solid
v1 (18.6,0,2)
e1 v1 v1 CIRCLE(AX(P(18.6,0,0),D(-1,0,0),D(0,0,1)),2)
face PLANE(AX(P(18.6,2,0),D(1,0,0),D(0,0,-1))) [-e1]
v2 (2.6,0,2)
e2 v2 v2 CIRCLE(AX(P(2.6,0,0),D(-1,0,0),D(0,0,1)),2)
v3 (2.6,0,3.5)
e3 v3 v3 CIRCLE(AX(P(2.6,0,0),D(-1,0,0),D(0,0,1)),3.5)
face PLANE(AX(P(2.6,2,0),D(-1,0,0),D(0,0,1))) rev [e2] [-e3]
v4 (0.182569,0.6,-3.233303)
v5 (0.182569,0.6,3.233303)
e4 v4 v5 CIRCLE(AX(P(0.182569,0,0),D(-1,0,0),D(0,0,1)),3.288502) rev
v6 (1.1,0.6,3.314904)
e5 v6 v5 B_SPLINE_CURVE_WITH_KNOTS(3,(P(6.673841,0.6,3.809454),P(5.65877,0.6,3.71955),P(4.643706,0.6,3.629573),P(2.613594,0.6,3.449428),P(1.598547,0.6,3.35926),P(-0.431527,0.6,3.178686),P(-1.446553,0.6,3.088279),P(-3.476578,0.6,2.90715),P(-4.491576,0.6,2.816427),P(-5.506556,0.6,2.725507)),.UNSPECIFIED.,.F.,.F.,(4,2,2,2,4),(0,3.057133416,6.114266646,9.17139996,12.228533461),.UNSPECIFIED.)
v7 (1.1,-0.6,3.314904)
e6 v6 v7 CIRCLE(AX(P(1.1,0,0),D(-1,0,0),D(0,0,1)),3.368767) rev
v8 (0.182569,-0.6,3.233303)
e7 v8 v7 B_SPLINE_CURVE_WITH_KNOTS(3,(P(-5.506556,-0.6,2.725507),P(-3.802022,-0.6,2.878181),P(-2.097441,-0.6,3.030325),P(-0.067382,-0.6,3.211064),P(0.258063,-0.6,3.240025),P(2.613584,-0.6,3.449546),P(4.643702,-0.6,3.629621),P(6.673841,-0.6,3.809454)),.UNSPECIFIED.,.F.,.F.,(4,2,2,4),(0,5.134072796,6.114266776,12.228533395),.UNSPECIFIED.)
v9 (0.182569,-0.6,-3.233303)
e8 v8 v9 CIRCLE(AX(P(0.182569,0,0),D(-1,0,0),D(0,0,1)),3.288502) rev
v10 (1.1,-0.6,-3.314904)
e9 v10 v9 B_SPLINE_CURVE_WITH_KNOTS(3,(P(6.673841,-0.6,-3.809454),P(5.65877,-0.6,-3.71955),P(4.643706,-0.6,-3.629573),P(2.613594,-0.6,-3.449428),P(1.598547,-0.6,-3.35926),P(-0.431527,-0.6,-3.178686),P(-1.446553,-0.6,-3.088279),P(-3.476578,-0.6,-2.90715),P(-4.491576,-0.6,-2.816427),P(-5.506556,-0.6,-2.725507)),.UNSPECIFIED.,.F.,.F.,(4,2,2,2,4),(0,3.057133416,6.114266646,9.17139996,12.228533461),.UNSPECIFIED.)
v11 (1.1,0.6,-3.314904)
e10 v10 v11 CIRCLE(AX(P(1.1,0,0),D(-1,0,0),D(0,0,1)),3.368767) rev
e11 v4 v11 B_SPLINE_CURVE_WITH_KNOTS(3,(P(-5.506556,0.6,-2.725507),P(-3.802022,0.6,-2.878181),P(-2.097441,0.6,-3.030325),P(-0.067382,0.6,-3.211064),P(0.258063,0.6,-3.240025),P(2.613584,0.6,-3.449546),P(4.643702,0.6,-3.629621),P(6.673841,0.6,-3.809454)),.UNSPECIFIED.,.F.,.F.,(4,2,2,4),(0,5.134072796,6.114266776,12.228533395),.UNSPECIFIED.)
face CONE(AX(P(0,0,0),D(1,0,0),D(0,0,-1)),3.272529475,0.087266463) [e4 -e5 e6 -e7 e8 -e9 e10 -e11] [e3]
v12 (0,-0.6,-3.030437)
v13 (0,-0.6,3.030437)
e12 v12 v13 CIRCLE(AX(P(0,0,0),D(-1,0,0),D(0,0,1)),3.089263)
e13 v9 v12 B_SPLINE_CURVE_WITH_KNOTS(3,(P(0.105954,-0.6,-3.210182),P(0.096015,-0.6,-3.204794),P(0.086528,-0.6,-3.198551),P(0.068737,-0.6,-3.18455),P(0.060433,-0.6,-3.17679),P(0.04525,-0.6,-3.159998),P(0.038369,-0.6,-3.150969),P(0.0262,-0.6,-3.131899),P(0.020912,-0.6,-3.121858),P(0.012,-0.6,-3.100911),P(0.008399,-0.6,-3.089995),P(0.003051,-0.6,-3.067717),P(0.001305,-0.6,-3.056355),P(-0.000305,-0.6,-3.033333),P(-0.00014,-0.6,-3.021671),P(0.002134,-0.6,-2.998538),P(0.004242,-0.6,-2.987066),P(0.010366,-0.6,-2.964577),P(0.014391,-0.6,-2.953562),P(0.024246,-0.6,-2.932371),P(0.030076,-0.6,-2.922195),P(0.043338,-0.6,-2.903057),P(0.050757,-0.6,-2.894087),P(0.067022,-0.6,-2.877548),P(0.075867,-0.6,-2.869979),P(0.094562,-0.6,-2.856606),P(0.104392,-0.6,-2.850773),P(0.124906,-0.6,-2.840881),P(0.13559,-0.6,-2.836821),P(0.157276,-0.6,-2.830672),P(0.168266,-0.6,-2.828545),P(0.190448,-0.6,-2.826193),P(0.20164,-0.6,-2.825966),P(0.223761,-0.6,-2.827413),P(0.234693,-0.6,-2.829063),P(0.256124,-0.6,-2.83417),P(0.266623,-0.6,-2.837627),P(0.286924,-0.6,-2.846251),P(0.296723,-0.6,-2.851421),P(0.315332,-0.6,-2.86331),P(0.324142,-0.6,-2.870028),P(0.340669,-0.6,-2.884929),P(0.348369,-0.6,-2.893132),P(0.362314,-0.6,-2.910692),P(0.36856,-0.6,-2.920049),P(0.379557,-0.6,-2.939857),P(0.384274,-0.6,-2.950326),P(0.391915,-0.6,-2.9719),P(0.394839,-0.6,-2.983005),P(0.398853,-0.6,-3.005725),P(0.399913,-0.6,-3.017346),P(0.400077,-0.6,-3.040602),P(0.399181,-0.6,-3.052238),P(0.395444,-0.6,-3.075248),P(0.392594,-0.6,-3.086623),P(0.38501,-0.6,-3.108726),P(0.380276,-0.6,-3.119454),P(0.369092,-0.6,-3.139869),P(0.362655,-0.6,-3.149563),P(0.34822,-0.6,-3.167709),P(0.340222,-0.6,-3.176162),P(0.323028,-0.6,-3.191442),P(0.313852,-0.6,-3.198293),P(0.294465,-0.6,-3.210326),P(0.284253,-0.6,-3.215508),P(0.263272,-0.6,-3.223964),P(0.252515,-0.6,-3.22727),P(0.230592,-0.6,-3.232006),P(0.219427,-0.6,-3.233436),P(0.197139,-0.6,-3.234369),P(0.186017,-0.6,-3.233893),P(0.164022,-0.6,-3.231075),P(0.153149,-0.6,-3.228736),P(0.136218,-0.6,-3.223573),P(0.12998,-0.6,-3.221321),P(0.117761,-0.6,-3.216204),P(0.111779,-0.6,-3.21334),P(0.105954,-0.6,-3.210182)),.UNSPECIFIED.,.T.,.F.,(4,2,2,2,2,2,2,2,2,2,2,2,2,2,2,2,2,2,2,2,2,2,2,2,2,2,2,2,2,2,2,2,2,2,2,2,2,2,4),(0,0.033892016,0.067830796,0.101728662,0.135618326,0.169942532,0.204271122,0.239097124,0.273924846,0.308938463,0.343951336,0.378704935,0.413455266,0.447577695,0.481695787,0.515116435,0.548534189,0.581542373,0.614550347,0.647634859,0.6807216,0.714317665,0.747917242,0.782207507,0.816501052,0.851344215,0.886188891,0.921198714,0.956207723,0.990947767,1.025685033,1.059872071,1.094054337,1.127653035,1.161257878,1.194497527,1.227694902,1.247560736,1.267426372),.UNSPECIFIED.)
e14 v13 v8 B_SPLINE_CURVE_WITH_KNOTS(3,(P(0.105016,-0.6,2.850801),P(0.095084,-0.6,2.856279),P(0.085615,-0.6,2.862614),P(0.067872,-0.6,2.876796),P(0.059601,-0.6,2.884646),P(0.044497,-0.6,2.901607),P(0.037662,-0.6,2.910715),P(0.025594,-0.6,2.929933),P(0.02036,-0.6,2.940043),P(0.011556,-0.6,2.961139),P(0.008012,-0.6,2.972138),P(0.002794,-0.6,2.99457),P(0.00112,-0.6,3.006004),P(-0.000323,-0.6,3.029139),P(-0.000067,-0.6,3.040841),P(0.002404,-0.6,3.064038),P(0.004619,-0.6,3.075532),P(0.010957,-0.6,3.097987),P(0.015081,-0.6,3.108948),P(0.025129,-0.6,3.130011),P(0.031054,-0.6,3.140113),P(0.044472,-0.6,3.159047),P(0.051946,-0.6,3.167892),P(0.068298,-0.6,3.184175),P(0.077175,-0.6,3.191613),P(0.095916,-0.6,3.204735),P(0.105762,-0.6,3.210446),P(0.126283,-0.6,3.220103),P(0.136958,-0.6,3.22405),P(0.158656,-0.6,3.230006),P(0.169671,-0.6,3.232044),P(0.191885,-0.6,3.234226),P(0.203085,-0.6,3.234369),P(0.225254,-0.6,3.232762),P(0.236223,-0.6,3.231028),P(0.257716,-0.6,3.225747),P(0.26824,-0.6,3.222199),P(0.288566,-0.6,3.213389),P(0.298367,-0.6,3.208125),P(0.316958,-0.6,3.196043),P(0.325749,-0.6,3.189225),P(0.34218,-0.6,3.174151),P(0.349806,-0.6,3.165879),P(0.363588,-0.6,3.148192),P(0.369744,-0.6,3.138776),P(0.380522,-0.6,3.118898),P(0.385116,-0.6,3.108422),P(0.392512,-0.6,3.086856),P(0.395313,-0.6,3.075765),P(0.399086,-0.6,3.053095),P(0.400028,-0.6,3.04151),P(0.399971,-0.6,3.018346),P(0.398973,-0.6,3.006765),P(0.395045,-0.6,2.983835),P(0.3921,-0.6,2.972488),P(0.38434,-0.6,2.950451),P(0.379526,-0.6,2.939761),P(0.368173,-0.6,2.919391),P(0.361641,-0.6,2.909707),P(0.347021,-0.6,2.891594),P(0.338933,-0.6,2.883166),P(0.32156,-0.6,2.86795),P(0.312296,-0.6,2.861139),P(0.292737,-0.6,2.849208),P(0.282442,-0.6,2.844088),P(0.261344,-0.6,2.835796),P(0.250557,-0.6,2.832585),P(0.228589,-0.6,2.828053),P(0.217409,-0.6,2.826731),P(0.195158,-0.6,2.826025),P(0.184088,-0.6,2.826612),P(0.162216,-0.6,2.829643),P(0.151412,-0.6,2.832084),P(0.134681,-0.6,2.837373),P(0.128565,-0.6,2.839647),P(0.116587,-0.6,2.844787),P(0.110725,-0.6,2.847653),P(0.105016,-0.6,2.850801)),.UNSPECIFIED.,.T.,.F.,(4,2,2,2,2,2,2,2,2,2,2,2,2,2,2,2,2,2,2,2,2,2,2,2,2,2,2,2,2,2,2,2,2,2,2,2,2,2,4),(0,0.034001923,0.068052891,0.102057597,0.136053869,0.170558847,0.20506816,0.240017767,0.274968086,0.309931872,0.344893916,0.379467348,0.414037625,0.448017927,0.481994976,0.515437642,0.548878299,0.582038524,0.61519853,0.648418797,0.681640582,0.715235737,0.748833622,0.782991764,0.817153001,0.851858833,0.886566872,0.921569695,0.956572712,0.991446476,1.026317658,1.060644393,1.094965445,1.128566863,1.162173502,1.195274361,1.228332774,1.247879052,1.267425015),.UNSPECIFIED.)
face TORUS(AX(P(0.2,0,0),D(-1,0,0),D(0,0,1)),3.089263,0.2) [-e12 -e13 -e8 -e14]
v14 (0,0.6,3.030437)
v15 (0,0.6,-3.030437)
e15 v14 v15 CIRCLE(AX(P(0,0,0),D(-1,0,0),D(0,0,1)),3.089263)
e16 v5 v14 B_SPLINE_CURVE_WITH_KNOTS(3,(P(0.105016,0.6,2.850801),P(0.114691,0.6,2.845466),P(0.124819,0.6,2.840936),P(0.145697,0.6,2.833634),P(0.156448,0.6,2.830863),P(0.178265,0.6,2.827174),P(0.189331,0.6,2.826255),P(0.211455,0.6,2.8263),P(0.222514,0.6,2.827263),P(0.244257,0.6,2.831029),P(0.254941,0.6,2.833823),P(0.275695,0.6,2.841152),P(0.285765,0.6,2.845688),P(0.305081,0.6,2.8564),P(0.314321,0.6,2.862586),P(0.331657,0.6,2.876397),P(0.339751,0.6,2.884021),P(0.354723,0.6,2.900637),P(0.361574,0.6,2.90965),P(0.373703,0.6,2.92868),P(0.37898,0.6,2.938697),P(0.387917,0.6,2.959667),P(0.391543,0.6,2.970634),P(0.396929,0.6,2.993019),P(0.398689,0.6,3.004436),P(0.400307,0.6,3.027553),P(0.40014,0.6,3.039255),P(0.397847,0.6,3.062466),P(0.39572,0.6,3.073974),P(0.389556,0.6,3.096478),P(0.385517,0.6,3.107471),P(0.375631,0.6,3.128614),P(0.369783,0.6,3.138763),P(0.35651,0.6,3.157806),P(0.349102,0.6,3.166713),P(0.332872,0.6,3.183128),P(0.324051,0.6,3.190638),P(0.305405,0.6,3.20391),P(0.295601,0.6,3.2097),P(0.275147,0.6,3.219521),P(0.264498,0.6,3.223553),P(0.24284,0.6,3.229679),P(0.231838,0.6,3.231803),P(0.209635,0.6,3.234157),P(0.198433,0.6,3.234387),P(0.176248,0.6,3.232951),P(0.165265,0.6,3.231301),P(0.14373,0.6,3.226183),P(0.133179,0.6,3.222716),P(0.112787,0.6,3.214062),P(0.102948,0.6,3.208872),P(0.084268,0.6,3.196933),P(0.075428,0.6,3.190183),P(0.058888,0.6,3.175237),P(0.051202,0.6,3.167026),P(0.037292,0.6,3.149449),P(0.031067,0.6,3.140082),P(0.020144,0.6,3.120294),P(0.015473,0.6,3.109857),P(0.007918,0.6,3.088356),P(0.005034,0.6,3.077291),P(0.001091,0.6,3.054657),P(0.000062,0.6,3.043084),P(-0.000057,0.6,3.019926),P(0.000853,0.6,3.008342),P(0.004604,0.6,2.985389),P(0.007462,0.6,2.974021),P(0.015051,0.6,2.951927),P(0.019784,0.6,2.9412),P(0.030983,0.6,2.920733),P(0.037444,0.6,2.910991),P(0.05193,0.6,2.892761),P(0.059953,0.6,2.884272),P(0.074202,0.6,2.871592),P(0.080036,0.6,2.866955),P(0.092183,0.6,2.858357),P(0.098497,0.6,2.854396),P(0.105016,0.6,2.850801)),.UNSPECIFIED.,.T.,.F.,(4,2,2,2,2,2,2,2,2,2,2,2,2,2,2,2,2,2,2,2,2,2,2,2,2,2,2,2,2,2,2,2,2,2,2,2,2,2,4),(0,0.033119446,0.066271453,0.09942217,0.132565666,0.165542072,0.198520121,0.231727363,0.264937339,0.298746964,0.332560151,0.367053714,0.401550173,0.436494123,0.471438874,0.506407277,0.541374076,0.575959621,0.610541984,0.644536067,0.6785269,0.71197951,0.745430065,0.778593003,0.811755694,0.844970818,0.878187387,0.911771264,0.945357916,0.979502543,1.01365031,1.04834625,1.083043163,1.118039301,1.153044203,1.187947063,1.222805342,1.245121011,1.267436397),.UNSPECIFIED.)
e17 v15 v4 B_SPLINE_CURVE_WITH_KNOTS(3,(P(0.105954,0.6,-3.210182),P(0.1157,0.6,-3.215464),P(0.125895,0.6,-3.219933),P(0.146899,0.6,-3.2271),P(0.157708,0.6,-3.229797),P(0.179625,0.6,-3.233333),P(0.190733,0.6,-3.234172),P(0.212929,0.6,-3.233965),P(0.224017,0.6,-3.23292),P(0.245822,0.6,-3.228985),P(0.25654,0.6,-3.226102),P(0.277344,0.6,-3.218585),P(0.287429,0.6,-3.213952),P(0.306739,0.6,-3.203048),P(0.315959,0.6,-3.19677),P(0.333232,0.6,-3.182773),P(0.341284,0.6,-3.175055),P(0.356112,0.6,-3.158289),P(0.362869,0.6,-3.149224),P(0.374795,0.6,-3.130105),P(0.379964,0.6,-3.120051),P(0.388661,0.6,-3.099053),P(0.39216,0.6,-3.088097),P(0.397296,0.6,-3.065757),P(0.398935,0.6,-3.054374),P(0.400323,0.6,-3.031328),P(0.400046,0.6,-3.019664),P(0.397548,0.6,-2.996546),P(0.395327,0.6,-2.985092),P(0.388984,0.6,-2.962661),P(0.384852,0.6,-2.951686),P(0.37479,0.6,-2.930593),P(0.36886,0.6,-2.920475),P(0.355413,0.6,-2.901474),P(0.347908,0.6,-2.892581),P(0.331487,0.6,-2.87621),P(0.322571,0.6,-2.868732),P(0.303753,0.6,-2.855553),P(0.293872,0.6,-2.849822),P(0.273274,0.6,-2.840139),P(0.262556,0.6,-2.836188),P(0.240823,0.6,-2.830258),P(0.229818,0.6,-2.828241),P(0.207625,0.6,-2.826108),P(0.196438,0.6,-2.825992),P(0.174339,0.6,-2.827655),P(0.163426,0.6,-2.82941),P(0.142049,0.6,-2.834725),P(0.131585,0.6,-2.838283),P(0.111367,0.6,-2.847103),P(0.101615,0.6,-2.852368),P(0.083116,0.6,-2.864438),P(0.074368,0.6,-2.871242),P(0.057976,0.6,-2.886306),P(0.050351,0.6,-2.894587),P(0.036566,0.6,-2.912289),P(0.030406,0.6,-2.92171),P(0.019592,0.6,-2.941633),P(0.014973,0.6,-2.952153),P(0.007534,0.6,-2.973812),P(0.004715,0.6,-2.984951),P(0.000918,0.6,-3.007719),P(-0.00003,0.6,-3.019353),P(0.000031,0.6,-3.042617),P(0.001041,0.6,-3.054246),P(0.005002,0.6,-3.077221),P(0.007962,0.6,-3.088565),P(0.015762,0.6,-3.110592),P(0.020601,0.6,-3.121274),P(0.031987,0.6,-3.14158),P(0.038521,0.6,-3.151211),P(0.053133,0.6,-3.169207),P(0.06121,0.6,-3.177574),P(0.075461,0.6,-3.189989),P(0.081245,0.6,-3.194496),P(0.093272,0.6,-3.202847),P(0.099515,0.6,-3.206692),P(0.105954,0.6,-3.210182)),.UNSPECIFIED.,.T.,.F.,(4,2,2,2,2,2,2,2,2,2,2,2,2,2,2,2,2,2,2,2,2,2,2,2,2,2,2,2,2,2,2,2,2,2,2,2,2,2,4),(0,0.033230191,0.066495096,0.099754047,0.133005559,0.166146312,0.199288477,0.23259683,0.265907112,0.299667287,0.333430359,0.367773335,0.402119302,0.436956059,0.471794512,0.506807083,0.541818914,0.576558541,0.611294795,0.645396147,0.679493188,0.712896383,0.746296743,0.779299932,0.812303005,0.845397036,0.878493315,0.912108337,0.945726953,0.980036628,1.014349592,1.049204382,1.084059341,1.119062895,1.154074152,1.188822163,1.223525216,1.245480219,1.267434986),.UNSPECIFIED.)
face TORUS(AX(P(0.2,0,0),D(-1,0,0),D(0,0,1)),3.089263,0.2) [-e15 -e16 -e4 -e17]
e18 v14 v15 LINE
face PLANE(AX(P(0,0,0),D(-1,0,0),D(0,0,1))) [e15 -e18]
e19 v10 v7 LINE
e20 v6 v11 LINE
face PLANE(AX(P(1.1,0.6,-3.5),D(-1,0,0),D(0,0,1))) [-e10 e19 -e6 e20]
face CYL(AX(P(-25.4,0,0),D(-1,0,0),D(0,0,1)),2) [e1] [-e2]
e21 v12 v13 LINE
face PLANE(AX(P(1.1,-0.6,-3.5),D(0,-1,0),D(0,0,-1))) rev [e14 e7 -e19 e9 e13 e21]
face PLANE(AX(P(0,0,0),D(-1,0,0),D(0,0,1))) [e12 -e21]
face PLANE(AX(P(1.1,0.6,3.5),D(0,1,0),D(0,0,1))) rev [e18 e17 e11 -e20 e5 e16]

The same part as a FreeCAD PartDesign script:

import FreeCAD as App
import Part
import Sketcher

V = App.Vector
Q = App.Units.Quantity


def edges_at(feature, points):
    """Names of the edges that pass closest to the given points."""
    edges = feature.Shape.Edges
    near = lambda p: min(range(len(edges)), key=lambda i: edges[i].distToShape(Part.Vertex(*p))[0])
    return sorted({f"Edge{near(p) + 1}" for p in points})

doc = App.newDocument("Part")
body = doc.addObject("PartDesign::Body", "Body")

# Sketch on XY plane
sketch1 = doc.addObject("Sketcher::SketchObject", "Sketch")
body.addObject(sketch1)
sketch1.AttachmentSupport = (doc.XY_Plane, [""])
sketch1.MapMode = "FlatFace"
sketch1.addGeometry([
    Part.LineSegment(V(2.6, 2, 0), V(2.6, 3.5, 0)),  # 0
    Part.LineSegment(V(2.6, 3.5, 0), V(0, 3.3, 0)),  # 1
    Part.LineSegment(V(0, 3.3, 0), V(0, 0, 0)),  # 2
    Part.LineSegment(V(0, 0, 0), V(18.6, 0, 0)),  # 3
    Part.LineSegment(V(18.6, 0, 0), V(18.6, 2, 0)),  # 4
    Part.LineSegment(V(18.6, 2, 0), V(2.6, 2, 0)),  # 5
], False)
sketch1.addConstraint([
    Sketcher.Constraint("Coincident", 0, 2, 1, 1),
    Sketcher.Constraint("Coincident", 1, 2, 2, 1),
    Sketcher.Constraint("Coincident", 2, 2, 3, 1),
    Sketcher.Constraint("Coincident", 3, 2, 4, 1),
    Sketcher.Constraint("Coincident", 4, 2, 5, 1),
    Sketcher.Constraint("Coincident", 5, 2, 0, 1),
    Sketcher.Constraint("Vertical", 0),
    Sketcher.Constraint("Vertical", 2),
    Sketcher.Constraint("Horizontal", 3),
    Sketcher.Constraint("Vertical", 4),
    Sketcher.Constraint("Horizontal", 5),
    Sketcher.Constraint("Coincident", 2, 2, -1, 1),
    Sketcher.Constraint("DistanceX", 5, 2, 5, 1, Q("16 mm")),
    Sketcher.Constraint("DistanceY", 4, 1, 4, 2, Q("2 mm")),
    Sketcher.Constraint("Angle", 1, Q("-175 deg")),
    Sketcher.Constraint("DistanceX", 3, 1, 3, 2, Q("18.6 mm")),
    Sketcher.Constraint("DistanceY", 0, 1, 0, 2, Q("1.5 mm")),
])
revolution = doc.addObject("PartDesign::Revolution", "Revolution")
body.addObject(revolution)
revolution.Profile = sketch1
revolution.ReferenceAxis = (sketch1, ["H_Axis"])
revolution.Angle = 360
doc.recompute()

fillet = doc.addObject("PartDesign::Fillet", "Fillet")
body.addObject(fillet)
fillet.Base = (revolution, edges_at(revolution, [(0, 0, -3.273)]))
fillet.Radius = 0.2

# Sketch on YZ plane
sketch2 = doc.addObject("Sketcher::SketchObject", "Sketch001")
body.addObject(sketch2)
sketch2.AttachmentSupport = (doc.YZ_Plane, [""])
sketch2.MapMode = "FlatFace"
sketch2.addGeometry([
    Part.LineSegment(V(0.6, 3.5, 0), V(-0.6, 3.5, 0)),
    Part.LineSegment(V(-0.6, 3.5, 0), V(-0.6, -3.5, 0)),
    Part.LineSegment(V(-0.6, -3.5, 0), V(0.6, -3.5, 0)),
    Part.LineSegment(V(0.6, -3.5, 0), V(0.6, 3.5, 0)),
], False)
sketch2.addConstraint([
    Sketcher.Constraint("Coincident", 0, 2, 1, 1),
    Sketcher.Constraint("Coincident", 1, 2, 2, 1),
    Sketcher.Constraint("Coincident", 2, 2, 3, 1),
    Sketcher.Constraint("Coincident", 3, 2, 0, 1),
    Sketcher.Constraint("Horizontal", 0),
    Sketcher.Constraint("Vertical", 1),
    Sketcher.Constraint("Horizontal", 2),
    Sketcher.Constraint("Vertical", 3),
    Sketcher.Constraint("Symmetric", 0, 2, 2, 2, -1, 1),
    Sketcher.Constraint("DistanceY", 1, 2, 1, 1, Q("7 mm")),
    Sketcher.Constraint("DistanceX", 0, 2, 0, 1, Q("1.2 mm")),
])
pocket1 = doc.addObject("PartDesign::Pocket", "Pocket")
body.addObject(pocket1)
pocket1.Profile = sketch2
pocket1.Length = 1.1
pocket1.Reversed = True

doc.recompute()
